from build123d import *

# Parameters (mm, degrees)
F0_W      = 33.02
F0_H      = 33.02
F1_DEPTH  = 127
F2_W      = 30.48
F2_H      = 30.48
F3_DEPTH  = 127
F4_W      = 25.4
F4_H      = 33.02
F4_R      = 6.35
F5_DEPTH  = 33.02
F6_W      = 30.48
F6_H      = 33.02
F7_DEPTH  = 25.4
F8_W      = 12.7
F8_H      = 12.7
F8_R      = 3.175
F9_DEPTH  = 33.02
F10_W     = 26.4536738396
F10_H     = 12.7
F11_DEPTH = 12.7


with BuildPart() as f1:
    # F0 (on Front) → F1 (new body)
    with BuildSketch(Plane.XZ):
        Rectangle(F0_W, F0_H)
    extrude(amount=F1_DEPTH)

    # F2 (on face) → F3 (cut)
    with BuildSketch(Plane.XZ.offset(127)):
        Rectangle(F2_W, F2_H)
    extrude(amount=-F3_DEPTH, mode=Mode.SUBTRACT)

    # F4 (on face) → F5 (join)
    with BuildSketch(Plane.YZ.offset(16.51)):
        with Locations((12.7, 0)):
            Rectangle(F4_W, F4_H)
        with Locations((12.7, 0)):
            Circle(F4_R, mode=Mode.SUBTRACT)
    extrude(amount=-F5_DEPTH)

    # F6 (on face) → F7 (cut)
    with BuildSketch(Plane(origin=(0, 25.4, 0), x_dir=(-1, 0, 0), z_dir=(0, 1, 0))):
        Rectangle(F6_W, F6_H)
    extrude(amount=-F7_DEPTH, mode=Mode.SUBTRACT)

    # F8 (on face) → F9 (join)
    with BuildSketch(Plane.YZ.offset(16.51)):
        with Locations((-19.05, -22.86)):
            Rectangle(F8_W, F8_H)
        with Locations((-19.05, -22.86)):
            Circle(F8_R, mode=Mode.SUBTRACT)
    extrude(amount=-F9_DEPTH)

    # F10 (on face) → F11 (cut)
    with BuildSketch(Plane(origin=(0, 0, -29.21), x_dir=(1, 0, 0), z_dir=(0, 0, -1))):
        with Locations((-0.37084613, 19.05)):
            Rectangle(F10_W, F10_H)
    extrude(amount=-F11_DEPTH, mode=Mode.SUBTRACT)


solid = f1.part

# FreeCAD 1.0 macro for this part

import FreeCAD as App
import Part
import Sketcher
from FreeCAD import Vector
Q = App.Units.Quantity

doc = App.newDocument("Part")
body = doc.addObject("PartDesign::Body", "Body")

sketch1 = body.newObject("Sketcher::SketchObject", "Sketch")
sketch1.AttachmentSupport = (doc.getObject("XZ_Plane"), [""])
sketch1.MapMode = "FlatFace"
sketch1.addGeometry(Part.LineSegment(Vector(-16.51, 16.51, 0), Vector(-16.51, -16.51, 0)), False)
sketch1.addGeometry(Part.LineSegment(Vector(-16.51, -16.51, 0), Vector(16.51, -16.51, 0)), False)
sketch1.addGeometry(Part.LineSegment(Vector(16.51, -16.51, 0), Vector(16.51, 16.51, 0)), False)
sketch1.addGeometry(Part.LineSegment(Vector(16.51, 16.51, 0), Vector(-16.51, 16.51, 0)), False)
sketch1.addConstraint(Sketcher.Constraint("Coincident", 0, 2, 1, 1))
sketch1.addConstraint(Sketcher.Constraint("Coincident", 1, 2, 2, 1))
sketch1.addConstraint(Sketcher.Constraint("Coincident", 2, 2, 3, 1))
sketch1.addConstraint(Sketcher.Constraint("Coincident", 3, 2, 0, 1))
sketch1.addConstraint(Sketcher.Constraint("Vertical", 0))
sketch1.addConstraint(Sketcher.Constraint("Horizontal", 1))
sketch1.addConstraint(Sketcher.Constraint("Vertical", 2))
sketch1.addConstraint(Sketcher.Constraint("Horizontal", 3))
sketch1.addConstraint(Sketcher.Constraint("Symmetric", 0, 2, 2, 2, -1, 1))
sketch1.addConstraint(Sketcher.Constraint("Equal", 3, 0))
sketch1.addConstraint(Sketcher.Constraint("DistanceX", 1, 1, 1, 2, Q("1.3 in")))
pad1 = body.newObject("PartDesign::Pad", "Pad")
pad1.Profile = sketch1
pad1.Length = Q("5 in")

sketch2 = body.newObject("Sketcher::SketchObject", "Sketch001")
sketch2.AttachmentSupport = (doc.getObject("XZ_Plane"), [""])
sketch2.MapMode = "FlatFace"
sketch2.AttachmentOffset = App.Placement(Vector(0, 0, 5 * 25.4), App.Rotation())
sketch2.addGeometry(Part.LineSegment(Vector(-15.24, 15.24, 0), Vector(-15.24, -15.24, 0)), False)
sketch2.addGeometry(Part.LineSegment(Vector(-15.24, -15.24, 0), Vector(15.24, -15.24, 0)), False)
sketch2.addGeometry(Part.LineSegment(Vector(15.24, -15.24, 0), Vector(15.24, 15.24, 0)), False)
sketch2.addGeometry(Part.LineSegment(Vector(15.24, 15.24, 0), Vector(-15.24, 15.24, 0)), False)
sketch2.addConstraint(Sketcher.Constraint("Coincident", 0, 2, 1, 1))
sketch2.addConstraint(Sketcher.Constraint("Coincident", 1, 2, 2, 1))
sketch2.addConstraint(Sketcher.Constraint("Coincident", 2, 2, 3, 1))
sketch2.addConstraint(Sketcher.Constraint("Coincident", 3, 2, 0, 1))
sketch2.addConstraint(Sketcher.Constraint("Vertical", 0))
sketch2.addConstraint(Sketcher.Constraint("Horizontal", 1))
sketch2.addConstraint(Sketcher.Constraint("Vertical", 2))
sketch2.addConstraint(Sketcher.Constraint("Horizontal", 3))
sketch2.addConstraint(Sketcher.Constraint("Symmetric", 0, 2, 2, 2, -1, 1))
sketch2.addConstraint(Sketcher.Constraint("Equal", 3, 0))
sketch2.addConstraint(Sketcher.Constraint("DistanceX", 1, 1, 1, 2, Q("1.2 in")))
pocket1 = body.newObject("PartDesign::Pocket", "Pocket")
pocket1.Profile = sketch2
pocket1.Length = Q("5 in")

sketch3 = body.newObject("Sketcher::SketchObject", "Sketch002")
sketch3.AttachmentSupport = (doc.getObject("YZ_Plane"), [""])
sketch3.MapMode = "FlatFace"
sketch3.AttachmentOffset = App.Placement(Vector(0, 0, 0.65 * 25.4), App.Rotation())
sketch3.addGeometry(Part.LineSegment(Vector(0, 16.51, 0), Vector(0, -16.51, 0)), False)
sketch3.addGeometry(Part.LineSegment(Vector(0, -16.51, 0), Vector(25.4, -16.51, 0)), False)
sketch3.addGeometry(Part.LineSegment(Vector(25.4, -16.51, 0), Vector(25.4, 16.51, 0)), False)
sketch3.addGeometry(Part.LineSegment(Vector(25.4, 16.51, 0), Vector(0, 16.51, 0)), False)
sketch3.addGeometry(Part.Circle(Vector(12.7, 0, 0), Vector(0, 0, 1), 6.35), False)
sketch3.addConstraint(Sketcher.Constraint("Coincident", 0, 2, 1, 1))
sketch3.addConstraint(Sketcher.Constraint("Coincident", 1, 2, 2, 1))
sketch3.addConstraint(Sketcher.Constraint("Coincident", 2, 2, 3, 1))
sketch3.addConstraint(Sketcher.Constraint("Coincident", 3, 2, 0, 1))
sketch3.addConstraint(Sketcher.Constraint("Vertical", 0))
sketch3.addConstraint(Sketcher.Constraint("Horizontal", 1))
sketch3.addConstraint(Sketcher.Constraint("Vertical", 2))
sketch3.addConstraint(Sketcher.Constraint("Horizontal", 3))
sketch3.addConstraint(Sketcher.Constraint("Symmetric", 0, 2, 3, 2, -1, 1))
sketch3.addConstraint(Sketcher.Constraint("PointOnObject", 4, 3, -1))
sketch3.addConstraint(Sketcher.Constraint("Diameter", 4, Q("0.5 in")))
sketch3.addConstraint(Sketcher.Constraint("DistanceX", 1, 1, 1, 2, Q("1 in")))
sketch3.addConstraint(Sketcher.Constraint("DistanceY", 0, 2, 0, 1, Q("1.3 in")))
sketch3.addConstraint(Sketcher.Constraint("DistanceX", -1, 1, 4, 3, Q("0.5 in")))
pad2 = body.newObject("PartDesign::Pad", "Pad001")
pad2.Profile = sketch3
pad2.Length = Q("1.3 in")
pad2.Reversed = True

sketch4 = body.newObject("Sketcher::SketchObject", "Sketch003")
sketch4.AttachmentSupport = (doc.getObject("XZ_Plane"), [""])
sketch4.MapMode = "FlatFace"
sketch4.AttachmentOffset = App.Placement(Vector(0, 0, -1 * 25.4), App.Rotation())
sketch4.addGeometry(Part.LineSegment(Vector(15.24, 16.51, 0), Vector(15.24, -16.51, 0)), False)
sketch4.addGeometry(Part.LineSegment(Vector(15.24, -16.51, 0), Vector(-15.24, -16.51, 0)), False)
sketch4.addGeometry(Part.LineSegment(Vector(-15.24, -16.51, 0), Vector(-15.24, 16.51, 0)), False)
sketch4.addGeometry(Part.LineSegment(Vector(-15.24, 16.51, 0), Vector(15.24, 16.51, 0)), False)
sketch4.addConstraint(Sketcher.Constraint("Coincident", 0, 2, 1, 1))
sketch4.addConstraint(Sketcher.Constraint("Coincident", 1, 2, 2, 1))
sketch4.addConstraint(Sketcher.Constraint("Coincident", 2, 2, 3, 1))
sketch4.addConstraint(Sketcher.Constraint("Coincident", 3, 2, 0, 1))
sketch4.addConstraint(Sketcher.Constraint("Vertical", 0))
sketch4.addConstraint(Sketcher.Constraint("Horizontal", 1))
sketch4.addConstraint(Sketcher.Constraint("Vertical", 2))
sketch4.addConstraint(Sketcher.Constraint("Horizontal", 3))
sketch4.addConstraint(Sketcher.Constraint("Symmetric", 0, 2, 2, 2, -1, 1))
sketch4.addConstraint(Sketcher.Constraint("DistanceX", 1, 2, 1, 1, Q("1.2 in")))
sketch4.addConstraint(Sketcher.Constraint("DistanceY", 0, 2, 0, 1, Q("1.3 in")))
pocket2 = body.newObject("PartDesign::Pocket", "Pocket001")
pocket2.Profile = sketch4
pocket2.Length = Q("1 in")
pocket2.Reversed = True

sketch5 = body.newObject("Sketcher::SketchObject", "Sketch004")
sketch5.AttachmentSupport = (doc.getObject("YZ_Plane"), [""])
sketch5.MapMode = "FlatFace"
sketch5.AttachmentOffset = App.Placement(Vector(0, 0, 0.65 * 25.4), App.Rotation())
sketch5.addGeometry(Part.LineSegment(Vector(-25.4, -16.51, 0), Vector(-25.4, -29.21, 0)), False)
sketch5.addGeometry(Part.LineSegment(Vector(-25.4, -29.21, 0), Vector(-12.7, -29.21, 0)), False)
sketch5.addGeometry(Part.LineSegment(Vector(-12.7, -29.21, 0), Vector(-12.7, -16.51, 0)), False)
sketch5.addGeometry(Part.LineSegment(Vector(-12.7, -16.51, 0), Vector(-25.4, -16.51, 0)), False)
sketch5.addGeometry(Part.Circle(Vector(-19.05, -22.86, 0), Vector(0, 0, 1), 3.175), False)
sketch5.addConstraint(Sketcher.Constraint("Coincident", 0, 2, 1, 1))
sketch5.addConstraint(Sketcher.Constraint("Coincident", 1, 2, 2, 1))
sketch5.addConstraint(Sketcher.Constraint("Coincident", 2, 2, 3, 1))
sketch5.addConstraint(Sketcher.Constraint("Coincident", 3, 2, 0, 1))
sketch5.addConstraint(Sketcher.Constraint("Vertical", 0))
sketch5.addConstraint(Sketcher.Constraint("Horizontal", 1))
sketch5.addConstraint(Sketcher.Constraint("Vertical", 2))
sketch5.addConstraint(Sketcher.Constraint("Horizontal", 3))
sketch5.addConstraint(Sketcher.Constraint("Equal", 3, 0))
sketch5.addConstraint(Sketcher.Constraint("Diameter", 4, Q("0.25 in")))
sketch5.addConstraint(Sketcher.Constraint("DistanceX", 1, 1, 1, 2, Q("0.5 in")))
sketch5.addConstraint(Sketcher.Constraint("DistanceX", 0, 2, -1, 1, Q("1 in")))
sketch5.addConstraint(Sketcher.Constraint("DistanceY", 4, 3, -1, 1, Q("0.9 in")))
sketch5.addConstraint(Sketcher.Constraint("DistanceX", 4, 3, -1, 1, Q("0.75 in")))
sketch5.addConstraint(Sketcher.Constraint("DistanceY", 0, 2, -1, 1, Q("1.15 in")))
pad3 = body.newObject("PartDesign::Pad", "Pad002")
pad3.Profile = sketch5
pad3.Length = Q("1.3 in")
pad3.Reversed = True

sketch6 = body.newObject("Sketcher::SketchObject", "Sketch005")
sketch6.AttachmentSupport = (doc.getObject("XY_Plane"), [""])
sketch6.MapMode = "FlatFace"
sketch6.AttachmentOffset = App.Placement(Vector(0, 0, -1.15 * 25.4), App.Rotation())
sketch6.addGeometry(Part.LineSegment(Vector(-13.597683, -25.4, 0), Vector(-13.597683, -12.7, 0)), False)
sketch6.addGeometry(Part.LineSegment(Vector(-13.597683, -12.7, 0), Vector(12.855991, -12.7, 0)), False)
sketch6.addGeometry(Part.LineSegment(Vector(12.855991, -12.7, 0), Vector(12.855991, -25.4, 0)), False)
sketch6.addGeometry(Part.LineSegment(Vector(12.855991, -25.4, 0), Vector(-13.597683, -25.4, 0)), False)
sketch6.addConstraint(Sketcher.Constraint("Coincident", 0, 2, 1, 1))
sketch6.addConstraint(Sketcher.Constraint("Coincident", 1, 2, 2, 1))
sketch6.addConstraint(Sketcher.Constraint("Coincident", 2, 2, 3, 1))
sketch6.addConstraint(Sketcher.Constraint("Coincident", 3, 2, 0, 1))
sketch6.addConstraint(Sketcher.Constraint("Vertical", 0))
sketch6.addConstraint(Sketcher.Constraint("Horizontal", 1))
sketch6.addConstraint(Sketcher.Constraint("Vertical", 2))
sketch6.addConstraint(Sketcher.Constraint("Horizontal", 3))
sketch6.addConstraint(Sketcher.Constraint("DistanceY", 0, 1, 0, 2, Q("0.5 in")))
sketch6.addConstraint(Sketcher.Constraint("DistanceY", 2, 2, -1, 1, Q("1 in")))
sketch6.addConstraint(Sketcher.Constraint("DistanceX", 1, 1, 1, 2, Q("26.453674 mm")))
sketch6.addConstraint(Sketcher.Constraint("DistanceX", -1, 1, 1, 2, Q("12.855991 mm")))
pocket3 = body.newObject("PartDesign::Pocket", "Pocket002")
pocket3.Profile = sketch6
pocket3.Length = Q("0.5 in")
pocket3.Reversed = True

doc.recompute()
